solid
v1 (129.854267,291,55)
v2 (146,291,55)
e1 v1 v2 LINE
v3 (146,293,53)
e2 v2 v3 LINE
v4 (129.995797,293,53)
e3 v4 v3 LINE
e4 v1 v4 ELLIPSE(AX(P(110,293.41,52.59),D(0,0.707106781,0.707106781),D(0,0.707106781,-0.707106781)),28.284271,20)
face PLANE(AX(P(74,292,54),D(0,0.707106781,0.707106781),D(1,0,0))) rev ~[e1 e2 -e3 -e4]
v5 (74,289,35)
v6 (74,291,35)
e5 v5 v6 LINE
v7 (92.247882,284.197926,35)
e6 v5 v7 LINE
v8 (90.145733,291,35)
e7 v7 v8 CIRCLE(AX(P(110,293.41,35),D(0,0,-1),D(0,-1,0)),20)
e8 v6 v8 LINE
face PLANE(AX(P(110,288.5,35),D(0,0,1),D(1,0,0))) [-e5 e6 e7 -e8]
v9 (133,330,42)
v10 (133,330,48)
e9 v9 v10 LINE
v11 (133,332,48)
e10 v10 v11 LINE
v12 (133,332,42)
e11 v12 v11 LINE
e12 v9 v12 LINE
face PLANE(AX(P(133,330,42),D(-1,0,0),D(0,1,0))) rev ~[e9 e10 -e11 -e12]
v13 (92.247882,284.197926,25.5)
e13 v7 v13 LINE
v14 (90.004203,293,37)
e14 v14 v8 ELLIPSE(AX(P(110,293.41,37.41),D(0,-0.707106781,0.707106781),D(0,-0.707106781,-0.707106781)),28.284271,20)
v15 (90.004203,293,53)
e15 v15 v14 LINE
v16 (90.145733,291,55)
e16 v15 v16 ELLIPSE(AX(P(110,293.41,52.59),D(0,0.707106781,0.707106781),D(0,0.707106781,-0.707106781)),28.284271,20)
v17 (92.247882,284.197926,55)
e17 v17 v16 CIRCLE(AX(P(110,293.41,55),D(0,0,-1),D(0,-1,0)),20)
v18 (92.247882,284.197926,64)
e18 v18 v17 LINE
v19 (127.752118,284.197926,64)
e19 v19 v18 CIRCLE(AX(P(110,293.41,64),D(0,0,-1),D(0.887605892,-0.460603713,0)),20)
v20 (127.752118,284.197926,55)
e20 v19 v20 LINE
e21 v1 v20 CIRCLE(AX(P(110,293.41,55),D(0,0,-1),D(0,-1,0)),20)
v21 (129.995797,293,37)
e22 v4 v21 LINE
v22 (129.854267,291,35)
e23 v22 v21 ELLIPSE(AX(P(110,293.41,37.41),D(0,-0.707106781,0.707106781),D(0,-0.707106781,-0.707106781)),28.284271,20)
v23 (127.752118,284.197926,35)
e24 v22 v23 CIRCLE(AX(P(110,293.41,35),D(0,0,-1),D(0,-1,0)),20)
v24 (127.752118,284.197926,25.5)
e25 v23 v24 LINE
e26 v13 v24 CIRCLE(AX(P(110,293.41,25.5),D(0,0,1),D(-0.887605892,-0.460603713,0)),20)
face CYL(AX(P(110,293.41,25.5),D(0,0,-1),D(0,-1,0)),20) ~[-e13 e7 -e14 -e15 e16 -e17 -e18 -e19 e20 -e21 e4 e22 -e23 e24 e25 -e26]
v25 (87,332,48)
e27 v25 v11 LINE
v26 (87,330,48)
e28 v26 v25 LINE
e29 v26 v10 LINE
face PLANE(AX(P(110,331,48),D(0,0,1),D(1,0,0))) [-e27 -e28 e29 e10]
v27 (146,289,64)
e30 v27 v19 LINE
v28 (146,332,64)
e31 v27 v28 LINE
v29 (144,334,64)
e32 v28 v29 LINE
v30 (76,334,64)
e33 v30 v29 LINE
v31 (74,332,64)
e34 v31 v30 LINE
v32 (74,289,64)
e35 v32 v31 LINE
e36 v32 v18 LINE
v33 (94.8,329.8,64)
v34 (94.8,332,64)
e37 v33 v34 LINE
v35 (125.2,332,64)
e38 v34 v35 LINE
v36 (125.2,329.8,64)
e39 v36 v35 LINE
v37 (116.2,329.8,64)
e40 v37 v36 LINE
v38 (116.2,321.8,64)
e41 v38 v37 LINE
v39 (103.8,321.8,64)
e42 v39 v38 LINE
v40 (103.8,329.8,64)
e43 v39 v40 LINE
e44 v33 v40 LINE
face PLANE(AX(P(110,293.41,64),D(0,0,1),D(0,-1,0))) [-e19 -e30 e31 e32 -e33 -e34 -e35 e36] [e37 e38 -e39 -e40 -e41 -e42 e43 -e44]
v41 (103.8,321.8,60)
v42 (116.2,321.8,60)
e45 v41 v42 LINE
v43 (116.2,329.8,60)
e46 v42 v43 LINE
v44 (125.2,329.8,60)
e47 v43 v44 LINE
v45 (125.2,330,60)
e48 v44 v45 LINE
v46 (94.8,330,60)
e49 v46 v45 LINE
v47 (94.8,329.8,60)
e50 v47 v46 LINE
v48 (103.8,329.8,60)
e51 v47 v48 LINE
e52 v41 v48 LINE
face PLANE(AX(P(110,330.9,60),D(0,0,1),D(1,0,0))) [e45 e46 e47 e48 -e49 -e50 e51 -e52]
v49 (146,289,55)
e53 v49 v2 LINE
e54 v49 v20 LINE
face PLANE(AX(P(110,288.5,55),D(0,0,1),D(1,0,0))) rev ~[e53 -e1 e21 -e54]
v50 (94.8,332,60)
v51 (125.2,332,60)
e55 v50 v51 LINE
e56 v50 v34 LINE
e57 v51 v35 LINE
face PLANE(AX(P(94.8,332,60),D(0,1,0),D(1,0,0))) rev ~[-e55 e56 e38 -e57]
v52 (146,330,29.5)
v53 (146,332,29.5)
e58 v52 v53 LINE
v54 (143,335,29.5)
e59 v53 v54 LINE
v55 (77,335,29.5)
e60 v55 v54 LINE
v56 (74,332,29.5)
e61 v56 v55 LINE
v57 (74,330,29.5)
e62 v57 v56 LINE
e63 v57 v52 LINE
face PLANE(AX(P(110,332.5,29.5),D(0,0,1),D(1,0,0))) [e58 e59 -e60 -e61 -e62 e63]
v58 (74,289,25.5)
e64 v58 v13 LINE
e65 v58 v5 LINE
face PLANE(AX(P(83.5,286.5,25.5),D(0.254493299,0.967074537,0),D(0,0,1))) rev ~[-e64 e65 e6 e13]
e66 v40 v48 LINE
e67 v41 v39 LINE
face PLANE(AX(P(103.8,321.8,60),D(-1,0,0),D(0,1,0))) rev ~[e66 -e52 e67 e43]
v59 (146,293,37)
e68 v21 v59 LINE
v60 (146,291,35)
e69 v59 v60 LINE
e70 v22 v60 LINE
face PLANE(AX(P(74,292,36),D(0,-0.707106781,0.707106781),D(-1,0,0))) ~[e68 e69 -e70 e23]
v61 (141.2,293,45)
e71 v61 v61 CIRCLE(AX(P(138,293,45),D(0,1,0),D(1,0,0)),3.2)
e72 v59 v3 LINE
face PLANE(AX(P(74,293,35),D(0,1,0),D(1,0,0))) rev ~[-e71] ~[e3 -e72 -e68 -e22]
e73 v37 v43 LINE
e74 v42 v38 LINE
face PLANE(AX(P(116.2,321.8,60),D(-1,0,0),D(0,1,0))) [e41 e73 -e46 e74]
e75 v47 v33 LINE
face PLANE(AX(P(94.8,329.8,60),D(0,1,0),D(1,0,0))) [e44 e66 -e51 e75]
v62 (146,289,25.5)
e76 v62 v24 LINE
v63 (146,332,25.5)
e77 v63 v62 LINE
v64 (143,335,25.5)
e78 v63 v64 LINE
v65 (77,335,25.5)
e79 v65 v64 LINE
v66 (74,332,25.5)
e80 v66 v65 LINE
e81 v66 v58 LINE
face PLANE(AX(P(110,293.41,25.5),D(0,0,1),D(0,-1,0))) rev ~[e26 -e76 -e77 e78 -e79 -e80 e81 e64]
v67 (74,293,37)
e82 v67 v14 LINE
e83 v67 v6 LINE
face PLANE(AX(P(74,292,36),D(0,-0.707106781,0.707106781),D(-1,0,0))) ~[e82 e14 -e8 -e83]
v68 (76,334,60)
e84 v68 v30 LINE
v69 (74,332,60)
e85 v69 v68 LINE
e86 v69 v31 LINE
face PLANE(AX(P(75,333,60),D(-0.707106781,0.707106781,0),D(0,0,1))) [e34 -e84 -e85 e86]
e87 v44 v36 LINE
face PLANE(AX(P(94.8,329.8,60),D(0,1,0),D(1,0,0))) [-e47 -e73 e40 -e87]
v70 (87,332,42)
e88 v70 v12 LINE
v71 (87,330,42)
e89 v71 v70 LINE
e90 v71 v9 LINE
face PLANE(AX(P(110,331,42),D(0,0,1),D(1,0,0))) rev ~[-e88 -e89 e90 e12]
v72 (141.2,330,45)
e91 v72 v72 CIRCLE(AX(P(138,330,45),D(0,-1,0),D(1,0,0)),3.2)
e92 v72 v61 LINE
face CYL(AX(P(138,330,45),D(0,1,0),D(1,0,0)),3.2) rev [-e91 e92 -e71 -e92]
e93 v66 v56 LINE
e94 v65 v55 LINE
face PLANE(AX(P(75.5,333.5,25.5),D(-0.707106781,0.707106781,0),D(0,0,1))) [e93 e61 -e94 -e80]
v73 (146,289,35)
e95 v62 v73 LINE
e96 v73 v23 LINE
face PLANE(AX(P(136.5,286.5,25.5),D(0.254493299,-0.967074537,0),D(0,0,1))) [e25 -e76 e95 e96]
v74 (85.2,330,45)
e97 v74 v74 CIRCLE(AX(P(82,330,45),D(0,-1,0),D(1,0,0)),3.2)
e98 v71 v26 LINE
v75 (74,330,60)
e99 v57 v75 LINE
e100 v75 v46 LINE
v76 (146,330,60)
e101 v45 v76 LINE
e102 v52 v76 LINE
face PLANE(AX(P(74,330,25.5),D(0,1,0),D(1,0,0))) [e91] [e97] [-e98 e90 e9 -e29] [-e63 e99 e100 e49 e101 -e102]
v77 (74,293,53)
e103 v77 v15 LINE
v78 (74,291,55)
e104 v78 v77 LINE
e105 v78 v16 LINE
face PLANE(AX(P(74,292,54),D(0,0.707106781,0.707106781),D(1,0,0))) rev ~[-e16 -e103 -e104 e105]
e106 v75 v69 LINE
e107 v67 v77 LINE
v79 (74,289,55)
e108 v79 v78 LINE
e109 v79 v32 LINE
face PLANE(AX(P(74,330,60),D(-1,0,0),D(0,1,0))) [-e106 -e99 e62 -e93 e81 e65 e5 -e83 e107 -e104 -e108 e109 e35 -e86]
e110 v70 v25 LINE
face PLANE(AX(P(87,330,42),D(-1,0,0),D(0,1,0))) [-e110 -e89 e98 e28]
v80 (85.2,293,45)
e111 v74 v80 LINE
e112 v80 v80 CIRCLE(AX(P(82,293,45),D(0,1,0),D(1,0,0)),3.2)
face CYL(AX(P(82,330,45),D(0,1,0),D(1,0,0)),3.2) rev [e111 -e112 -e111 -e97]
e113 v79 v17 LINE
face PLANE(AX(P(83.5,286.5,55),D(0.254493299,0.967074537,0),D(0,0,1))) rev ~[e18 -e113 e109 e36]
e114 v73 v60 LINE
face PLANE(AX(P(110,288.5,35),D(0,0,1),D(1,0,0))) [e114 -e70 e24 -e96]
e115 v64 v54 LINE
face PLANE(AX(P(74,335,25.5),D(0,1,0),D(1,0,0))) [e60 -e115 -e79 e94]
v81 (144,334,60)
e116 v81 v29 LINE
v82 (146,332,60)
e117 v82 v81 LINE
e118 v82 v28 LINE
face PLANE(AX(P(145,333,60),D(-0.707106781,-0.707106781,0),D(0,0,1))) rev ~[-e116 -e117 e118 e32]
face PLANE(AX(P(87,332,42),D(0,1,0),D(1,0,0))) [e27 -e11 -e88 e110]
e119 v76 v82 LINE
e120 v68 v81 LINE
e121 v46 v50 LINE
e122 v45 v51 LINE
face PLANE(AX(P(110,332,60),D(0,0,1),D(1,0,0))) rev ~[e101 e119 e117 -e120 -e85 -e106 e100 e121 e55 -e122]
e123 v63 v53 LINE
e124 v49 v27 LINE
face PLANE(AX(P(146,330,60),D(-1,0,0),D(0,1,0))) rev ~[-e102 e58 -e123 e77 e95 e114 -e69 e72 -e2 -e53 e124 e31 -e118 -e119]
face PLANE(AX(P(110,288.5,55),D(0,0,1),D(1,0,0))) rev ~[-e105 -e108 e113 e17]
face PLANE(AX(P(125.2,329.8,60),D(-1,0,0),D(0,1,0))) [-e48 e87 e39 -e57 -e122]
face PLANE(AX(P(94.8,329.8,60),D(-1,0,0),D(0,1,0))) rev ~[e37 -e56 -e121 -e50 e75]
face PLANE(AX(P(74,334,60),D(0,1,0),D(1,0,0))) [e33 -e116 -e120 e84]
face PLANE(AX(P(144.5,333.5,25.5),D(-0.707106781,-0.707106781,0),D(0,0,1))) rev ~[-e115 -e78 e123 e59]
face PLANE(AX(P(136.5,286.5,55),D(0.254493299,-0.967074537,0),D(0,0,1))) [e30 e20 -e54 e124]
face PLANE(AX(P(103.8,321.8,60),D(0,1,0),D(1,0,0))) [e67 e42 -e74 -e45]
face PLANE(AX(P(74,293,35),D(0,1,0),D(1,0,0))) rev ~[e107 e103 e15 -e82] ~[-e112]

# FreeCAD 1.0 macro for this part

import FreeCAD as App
import Part
import Sketcher

V = App.Vector


def edges_at(feature, points):
    """Names of the edges that pass closest to the given points."""
    edges = feature.Shape.Edges
    near = lambda p: min(range(len(edges)), key=lambda i: edges[i].distToShape(Part.Vertex(*p))[0])
    return sorted({f"Edge{near(p) + 1}" for p in points})

doc = App.newDocument("Part")
body = doc.addObject("PartDesign::Body", "Body")

# Sketch on XY plane
sketch1 = body.newObject("Sketcher::SketchObject", "Sketch")
sketch1.AttachmentSupport = (doc.getObject("XY_Plane"), [""])
sketch1.MapMode = "FlatFace"
sketch1.AttachmentOffset = App.Placement(V(0, 0, 60), App.Rotation())
sketch1.addGeometry([
    Part.LineSegment(V(94.8, 332, 0), V(94.8, 329.8, 0)),
    Part.LineSegment(V(94.8, 329.8, 0), V(125.2, 329.8, 0)),
    Part.LineSegment(V(125.2, 329.8, 0), V(125.2, 332, 0)),
    Part.LineSegment(V(125.2, 332, 0), V(94.8, 332, 0)),
], False)
sketch1.addConstraint([
    Sketcher.Constraint("Coincident", 0, 2, 1, 1),
    Sketcher.Constraint("Coincident", 1, 2, 2, 1),
    Sketcher.Constraint("Coincident", 2, 2, 3, 1),
    Sketcher.Constraint("Coincident", 3, 2, 0, 1),
    Sketcher.Constraint("Vertical", 0),
    Sketcher.Constraint("Horizontal", 1),
    Sketcher.Constraint("Vertical", 2),
    Sketcher.Constraint("Horizontal", 3),
    Sketcher.Constraint("DistanceX", 1, 1, 1, 2, 30.4),
    Sketcher.Constraint("DistanceY", 0, 2, 0, 1, 2.2),
    Sketcher.Constraint("DistanceY", -1, 1, 2, 2, 332.0),
    Sketcher.Constraint("DistanceX", -1, 1, 0, 2, 94.8),
])
pad1 = body.newObject("PartDesign::Pad", "Pad")
pad1.Profile = sketch1
pad1.Length = 4
body2 = doc.addObject("PartDesign::Body", "Body001")

# Sketch on XY plane
sketch2 = body2.newObject("Sketcher::SketchObject", "Sketch001")
sketch2.AttachmentSupport = (doc.getObject("XY_Plane001"), [""])
sketch2.MapMode = "FlatFace"
sketch2.AttachmentOffset = App.Placement(V(0, 0, 60), App.Rotation())
sketch2.addGeometry([
    Part.LineSegment(V(104, 332, 0), V(104, 322, 0)),
    Part.LineSegment(V(104, 322, 0), V(116, 322, 0)),
    Part.LineSegment(V(116, 322, 0), V(116, 332, 0)),
    Part.LineSegment(V(116, 332, 0), V(104, 332, 0)),
], False)
sketch2.addConstraint([
    Sketcher.Constraint("Coincident", 0, 2, 1, 1),
    Sketcher.Constraint("Coincident", 1, 2, 2, 1),
    Sketcher.Constraint("Coincident", 2, 2, 3, 1),
    Sketcher.Constraint("Coincident", 3, 2, 0, 1),
    Sketcher.Constraint("Vertical", 0),
    Sketcher.Constraint("Horizontal", 1),
    Sketcher.Constraint("Vertical", 2),
    Sketcher.Constraint("Horizontal", 3),
    Sketcher.Constraint("DistanceY", 0, 2, 0, 1, 10.0),
    Sketcher.Constraint("DistanceX", 1, 1, 1, 2, 12.4),
    Sketcher.Constraint("DistanceX", -1, 1, 0, 2, 103.8),
    Sketcher.Constraint("DistanceY", -1, 1, 0, 2, 321.8),
])
pad2 = body2.newObject("PartDesign::Pad", "Pad001")
pad2.Profile = sketch2
pad2.Length = 4
doc.recompute()

boolean = body2.newObject("PartDesign::Boolean", "Boolean")
boolean.Type = "Fuse"
boolean.addObjects([body])
body3 = doc.addObject("PartDesign::Body", "Body002")

# Sketch on XZ plane
sketch3 = body3.newObject("Sketcher::SketchObject", "Sketch002")
sketch3.AttachmentSupport = (doc.getObject("XZ_Plane002"), [""])
sketch3.MapMode = "FlatFace"
sketch3.AttachmentOffset = App.Placement(V(0, 0, -330), App.Rotation())
sketch3.addGeometry(Part.Circle(V(138, 45, 0), V(0, 0, 1), 3.2), False)
sketch3.addConstraint([
    Sketcher.Constraint("Diameter", 0, 6.4),
    Sketcher.Constraint("DistanceX", -1, 1, 0, 3, 138.0),
    Sketcher.Constraint("DistanceY", -1, 1, 0, 3, 45.0),
])
pad3 = body3.newObject("PartDesign::Pad", "Pad002")
pad3.Profile = sketch3
pad3.Length = 46
body4 = doc.addObject("PartDesign::Body", "Body003")
body4.AllowCompound = True

# Sketch on XZ plane
sketch4 = body4.newObject("Sketcher::SketchObject", "Sketch003")
sketch4.AttachmentSupport = (doc.getObject("XZ_Plane003"), [""])
sketch4.MapMode = "FlatFace"
sketch4.AttachmentOffset = App.Placement(V(0, 0, -330), App.Rotation())
sketch4.addGeometry(Part.Circle(V(82, 45, 0), V(0, 0, 1), 3.2), False)
sketch4.addConstraint([
    Sketcher.Constraint("Diameter", 0, 6.4),
    Sketcher.Constraint("DistanceX", -1, 1, 0, 3, 82.0),
    Sketcher.Constraint("DistanceY", -1, 1, 0, 3, 45.0),
])
pad4 = body4.newObject("PartDesign::Pad", "Pad003")
pad4.Profile = sketch4
pad4.Length = 46
doc.recompute()

boolean2 = body4.newObject("PartDesign::Boolean", "Boolean001")
boolean2.Type = "Fuse"
boolean2.addObjects([body3])
body5 = doc.addObject("PartDesign::Body", "Body004")

# Sketch on XY plane
sketch5 = body5.newObject("Sketcher::SketchObject", "Sketch004")
sketch5.AttachmentSupport = (doc.getObject("XY_Plane004"), [""])
sketch5.MapMode = "FlatFace"
sketch5.AttachmentOffset = App.Placement(V(0, 0, 25.5), App.Rotation())
sketch5.addGeometry(Part.Circle(V(110, 293, 0), V(0, 0, 1), 20), False)
sketch5.addConstraint([
    Sketcher.Constraint("Diameter", 0, 40.0),
    Sketcher.Constraint("DistanceX", -1, 1, 0, 3, 110.0),
    Sketcher.Constraint("DistanceY", -1, 1, 0, 3, 293.41),
])
pad5 = body5.newObject("PartDesign::Pad", "Pad004")
pad5.Profile = sketch5
pad5.Length = 38.5
body6 = doc.addObject("PartDesign::Body", "Body005")

# Sketch on XY plane
sketch6 = body6.newObject("Sketcher::SketchObject", "Sketch005")
sketch6.AttachmentSupport = (doc.getObject("XY_Plane005"), [""])
sketch6.MapMode = "FlatFace"
sketch6.AttachmentOffset = App.Placement(V(0, 0, 35), App.Rotation())
sketch6.addGeometry([
    Part.LineSegment(V(74, 293, 0), V(74, 284, 0)),
    Part.LineSegment(V(74, 284, 0), V(146, 284, 0)),
    Part.LineSegment(V(146, 284, 0), V(146, 293, 0)),
    Part.LineSegment(V(146, 293, 0), V(74, 293, 0)),
], False)
sketch6.addConstraint([
    Sketcher.Constraint("Coincident", 0, 2, 1, 1),
    Sketcher.Constraint("Coincident", 1, 2, 2, 1),
    Sketcher.Constraint("Coincident", 2, 2, 3, 1),
    Sketcher.Constraint("Coincident", 3, 2, 0, 1),
    Sketcher.Constraint("Vertical", 0),
    Sketcher.Constraint("Horizontal", 1),
    Sketcher.Constraint("Vertical", 2),
    Sketcher.Constraint("Horizontal", 3),
    Sketcher.Constraint("DistanceX", 1, 1, 1, 2, 72.0),
    Sketcher.Constraint("DistanceY", 0, 2, 0, 1, 9.0),
    Sketcher.Constraint("DistanceX", -1, 1, 0, 2, 74.0),
    Sketcher.Constraint("DistanceY", -1, 1, 0, 2, 284.0),
])
pad6 = body6.newObject("PartDesign::Pad", "Pad005")
pad6.Profile = sketch6
pad6.Length = 20
body7 = doc.addObject("PartDesign::Body", "Body006")

# Sketch on XY plane
sketch7 = body7.newObject("Sketcher::SketchObject", "Sketch006")
sketch7.AttachmentSupport = (doc.getObject("XY_Plane006"), [""])
sketch7.MapMode = "FlatFace"
sketch7.AttachmentOffset = App.Placement(V(0, 0, 25.5), App.Rotation())
sketch7.addGeometry([
    Part.LineSegment(V(74, 335, 0), V(74, 330, 0)),
    Part.LineSegment(V(74, 330, 0), V(146, 330, 0)),
    Part.LineSegment(V(146, 330, 0), V(146, 335, 0)),
    Part.LineSegment(V(146, 335, 0), V(74, 335, 0)),
], False)
sketch7.addConstraint([
    Sketcher.Constraint("Coincident", 0, 2, 1, 1),
    Sketcher.Constraint("Coincident", 1, 2, 2, 1),
    Sketcher.Constraint("Coincident", 2, 2, 3, 1),
    Sketcher.Constraint("Coincident", 3, 2, 0, 1),
    Sketcher.Constraint("Vertical", 0),
    Sketcher.Constraint("Horizontal", 1),
    Sketcher.Constraint("Vertical", 2),
    Sketcher.Constraint("Horizontal", 3),
    Sketcher.Constraint("DistanceX", 1, 1, 1, 2, 72.0),
    Sketcher.Constraint("DistanceY", 0, 2, 0, 1, 5.0),
    Sketcher.Constraint("DistanceX", -1, 1, 0, 2, 74.0),
    Sketcher.Constraint("DistanceY", -1, 1, 0, 2, 330.0),
])
pad7 = body7.newObject("PartDesign::Pad", "Pad006")
pad7.Profile = sketch7
pad7.Length = 4
body8 = doc.addObject("PartDesign::Body", "Body007")

# Sketch on XY plane
sketch8 = body8.newObject("Sketcher::SketchObject", "Sketch007")
sketch8.AttachmentSupport = (doc.getObject("XY_Plane007"), [""])
sketch8.MapMode = "FlatFace"
sketch8.AttachmentOffset = App.Placement(V(0, 0, 42), App.Rotation())
sketch8.addGeometry([
    Part.LineSegment(V(87, 332, 0), V(87, 330, 0)),
    Part.LineSegment(V(87, 330, 0), V(133, 330, 0)),
    Part.LineSegment(V(133, 330, 0), V(133, 332, 0)),
    Part.LineSegment(V(133, 332, 0), V(87, 332, 0)),
], False)
sketch8.addConstraint([
    Sketcher.Constraint("Coincident", 0, 2, 1, 1),
    Sketcher.Constraint("Coincident", 1, 2, 2, 1),
    Sketcher.Constraint("Coincident", 2, 2, 3, 1),
    Sketcher.Constraint("Coincident", 3, 2, 0, 1),
    Sketcher.Constraint("Vertical", 0),
    Sketcher.Constraint("Horizontal", 1),
    Sketcher.Constraint("Vertical", 2),
    Sketcher.Constraint("Horizontal", 3),
    Sketcher.Constraint("DistanceX", 1, 1, 1, 2, 46.0),
    Sketcher.Constraint("DistanceY", 0, 2, 0, 1, 2.0),
    Sketcher.Constraint("DistanceX", -1, 1, 0, 2, 87.0),
    Sketcher.Constraint("DistanceY", -1, 1, 0, 2, 330.0),
])
pad8 = body8.newObject("PartDesign::Pad", "Pad007")
pad8.Profile = sketch8
pad8.Length = 6
body9 = doc.addObject("PartDesign::Body", "Body008")

# Sketch on XY plane
sketch9 = body9.newObject("Sketcher::SketchObject", "Sketch008")
sketch9.AttachmentSupport = (doc.getObject("XY_Plane008"), [""])
sketch9.MapMode = "FlatFace"
sketch9.AttachmentOffset = App.Placement(V(0, 0, 60), App.Rotation())
sketch9.addGeometry([
    Part.LineSegment(V(74, 334, 0), V(74, 330, 0)),
    Part.LineSegment(V(74, 330, 0), V(146, 330, 0)),
    Part.LineSegment(V(146, 330, 0), V(146, 334, 0)),
    Part.LineSegment(V(146, 334, 0), V(74, 334, 0)),
], False)
sketch9.addConstraint([
    Sketcher.Constraint("Coincident", 0, 2, 1, 1),
    Sketcher.Constraint("Coincident", 1, 2, 2, 1),
    Sketcher.Constraint("Coincident", 2, 2, 3, 1),
    Sketcher.Constraint("Coincident", 3, 2, 0, 1),
    Sketcher.Constraint("Vertical", 0),
    Sketcher.Constraint("Horizontal", 1),
    Sketcher.Constraint("Vertical", 2),
    Sketcher.Constraint("Horizontal", 3),
    Sketcher.Constraint("DistanceX", 1, 1, 1, 2, 72.0),
    Sketcher.Constraint("DistanceY", 0, 2, 0, 1, 4.0),
    Sketcher.Constraint("DistanceX", -1, 1, 0, 2, 74.0),
    Sketcher.Constraint("DistanceY", -1, 1, 0, 2, 330.0),
])
pad9 = body9.newObject("PartDesign::Pad", "Pad008")
pad9.Profile = sketch9
pad9.Length = 4
body10 = doc.addObject("PartDesign::Body", "Body009")

# Sketch on XY plane
sketch10 = body10.newObject("Sketcher::SketchObject", "Sketch009")
sketch10.AttachmentSupport = (doc.getObject("XY_Plane009"), [""])
sketch10.MapMode = "FlatFace"
sketch10.AttachmentOffset = App.Placement(V(0, 0, 25.5), App.Rotation())
sketch10.addGeometry([
    Part.LineSegment(V(74, 330, 0), V(74, 284, 0)),
    Part.LineSegment(V(74, 284, 0), V(146, 284, 0)),
    Part.LineSegment(V(146, 284, 0), V(146, 330, 0)),
    Part.LineSegment(V(146, 330, 0), V(74, 330, 0)),
], False)
sketch10.addConstraint([
    Sketcher.Constraint("Coincident", 0, 2, 1, 1),
    Sketcher.Constraint("Coincident", 1, 2, 2, 1),
    Sketcher.Constraint("Coincident", 2, 2, 3, 1),
    Sketcher.Constraint("Coincident", 3, 2, 0, 1),
    Sketcher.Constraint("Vertical", 0),
    Sketcher.Constraint("Horizontal", 1),
    Sketcher.Constraint("Vertical", 2),
    Sketcher.Constraint("Horizontal", 3),
    Sketcher.Constraint("DistanceX", 1, 1, 1, 2, 72.0),
    Sketcher.Constraint("DistanceY", 0, 2, 0, 1, 46.0),
    Sketcher.Constraint("DistanceX", -1, 1, 0, 2, 74.0),
    Sketcher.Constraint("DistanceY", -1, 1, 0, 2, 284.0),
])
pad10 = body10.newObject("PartDesign::Pad", "Pad009")
pad10.Profile = sketch10
pad10.Length = 38.5
doc.recompute()

boolean3 = body10.newObject("PartDesign::Boolean", "Boolean002")
boolean3.Type = "Fuse"
boolean3.addObjects([body7])
doc.recompute()

boolean4 = body10.newObject("PartDesign::Boolean", "Boolean003")
boolean4.Type = "Fuse"
boolean4.addObjects([body8])
doc.recompute()

boolean5 = body10.newObject("PartDesign::Boolean", "Boolean004")
boolean5.Type = "Fuse"
boolean5.addObjects([body9])
doc.recompute()

boolean6 = body10.newObject("PartDesign::Boolean", "Boolean005")
boolean6.Type = "Cut"
boolean6.addObjects([body6])
doc.recompute()

chamfer = body10.newObject("PartDesign::Chamfer", "Chamfer")
chamfer.Base = (boolean6, edges_at(boolean6, [(110, 293, 35), (110, 293, 55)]))
chamfer.Size = 2
doc.recompute()

chamfer2 = body10.newObject("PartDesign::Chamfer", "Chamfer001")
chamfer2.Base = (chamfer, edges_at(chamfer, [(74, 284, 30.25), (74, 284, 59.5)]))
chamfer2.ChamferType = "Two distances"
chamfer2.Size = 5
chamfer2.Size2 = 19
chamfer2.FlipDirection = True
doc.recompute()

chamfer3 = body10.newObject("PartDesign::Chamfer", "Chamfer002")
chamfer3.Base = (chamfer2, edges_at(chamfer2, [(146, 284, 59.5)]))
chamfer3.ChamferType = "Two distances"
chamfer3.Size = 5
chamfer3.Size2 = 19
doc.recompute()

chamfer4 = body10.newObject("PartDesign::Chamfer", "Chamfer003")
chamfer4.Base = (chamfer3, edges_at(chamfer3, [(146, 284, 30.25)]))
chamfer4.ChamferType = "Two distances"
chamfer4.Size = 5
chamfer4.Size2 = 19
doc.recompute()

boolean7 = body10.newObject("PartDesign::Boolean", "Boolean006")
boolean7.Type = "Fuse"
boolean7.addObjects([body5])
doc.recompute()

boolean8 = body10.newObject("PartDesign::Boolean", "Boolean007")
boolean8.Type = "Cut"
boolean8.addObjects([body4])
doc.recompute()

boolean9 = body10.newObject("PartDesign::Boolean", "Boolean008")
boolean9.Type = "Cut"
boolean9.addObjects([body2])
doc.recompute()

chamfer5 = body10.newObject("PartDesign::Chamfer", "Chamfer004")
chamfer5.Base = (boolean9, edges_at(boolean9, [(74, 334, 62), (146, 334, 62)]))
chamfer5.Size = 2
doc.recompute()

chamfer6 = body10.newObject("PartDesign::Chamfer", "Chamfer005")
chamfer6.Base = (chamfer5, edges_at(chamfer5, [(74, 335, 27.5), (146, 335, 27.5)]))
chamfer6.Size = 3

doc.recompute()
